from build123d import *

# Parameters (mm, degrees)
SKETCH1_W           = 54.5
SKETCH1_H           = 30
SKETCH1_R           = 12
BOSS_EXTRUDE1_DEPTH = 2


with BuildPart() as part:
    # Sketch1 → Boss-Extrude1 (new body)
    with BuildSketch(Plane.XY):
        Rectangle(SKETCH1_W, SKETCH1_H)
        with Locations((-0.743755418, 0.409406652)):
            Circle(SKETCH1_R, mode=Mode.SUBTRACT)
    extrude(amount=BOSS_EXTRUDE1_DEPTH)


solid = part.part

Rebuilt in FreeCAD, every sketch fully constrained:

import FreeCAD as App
import Part
import Sketcher
from FreeCAD import Vector


def add_polygon(sketch, points):
    """Adds a closed chain of lines whose ends are joined by coincident constraints."""
    first, n = sketch.GeometryCount, len(points)
    for a, b in zip(points, points[1:] + points[:1]):
        sketch.addGeometry(Part.LineSegment(App.Vector(*a, 0), App.Vector(*b, 0)), False)
    for i in range(n):
        sketch.addConstraint(Sketcher.Constraint("Coincident", first + i, 2, first + (i + 1) % n, 1))

doc = App.newDocument("Part")
body = doc.addObject("PartDesign::Body", "Body")

sketch1 = body.newObject("Sketcher::SketchObject", "Sketch")
sketch1.AttachmentSupport = (doc.getObject("XY_Plane"), [""])
sketch1.MapMode = "FlatFace"
add_polygon(sketch1, [(-27, 15), (-27, -15), (27, -15), (27, 15)])
sketch1.addGeometry(Part.Circle(Vector(-1, 0, 0), Vector(0, 0, 1), 12), False)
sketch1.addConstraint([
    Sketcher.Constraint("Vertical", 0),
    Sketcher.Constraint("Horizontal", 1),
    Sketcher.Constraint("Vertical", 2),
    Sketcher.Constraint("Horizontal", 3),
    Sketcher.Constraint("Symmetric", 0, 2, 2, 2, -1, 1),
    Sketcher.Constraint("Diameter", 4, 24.0),
    Sketcher.Constraint("DistanceY", 0, 2, 0, 1, 30.0),
    Sketcher.Constraint("DistanceX", 1, 1, 1, 2, 54.5),
    Sketcher.Constraint("DistanceX", 4, 3, -1, 1, 0.743755),
    Sketcher.Constraint("DistanceY", -1, 1, 4, 3, 0.409407),
])
pad1 = body.newObject("PartDesign::Pad", "Pad")
pad1.Profile = sketch1
pad1.Length = 2

doc.recompute()
